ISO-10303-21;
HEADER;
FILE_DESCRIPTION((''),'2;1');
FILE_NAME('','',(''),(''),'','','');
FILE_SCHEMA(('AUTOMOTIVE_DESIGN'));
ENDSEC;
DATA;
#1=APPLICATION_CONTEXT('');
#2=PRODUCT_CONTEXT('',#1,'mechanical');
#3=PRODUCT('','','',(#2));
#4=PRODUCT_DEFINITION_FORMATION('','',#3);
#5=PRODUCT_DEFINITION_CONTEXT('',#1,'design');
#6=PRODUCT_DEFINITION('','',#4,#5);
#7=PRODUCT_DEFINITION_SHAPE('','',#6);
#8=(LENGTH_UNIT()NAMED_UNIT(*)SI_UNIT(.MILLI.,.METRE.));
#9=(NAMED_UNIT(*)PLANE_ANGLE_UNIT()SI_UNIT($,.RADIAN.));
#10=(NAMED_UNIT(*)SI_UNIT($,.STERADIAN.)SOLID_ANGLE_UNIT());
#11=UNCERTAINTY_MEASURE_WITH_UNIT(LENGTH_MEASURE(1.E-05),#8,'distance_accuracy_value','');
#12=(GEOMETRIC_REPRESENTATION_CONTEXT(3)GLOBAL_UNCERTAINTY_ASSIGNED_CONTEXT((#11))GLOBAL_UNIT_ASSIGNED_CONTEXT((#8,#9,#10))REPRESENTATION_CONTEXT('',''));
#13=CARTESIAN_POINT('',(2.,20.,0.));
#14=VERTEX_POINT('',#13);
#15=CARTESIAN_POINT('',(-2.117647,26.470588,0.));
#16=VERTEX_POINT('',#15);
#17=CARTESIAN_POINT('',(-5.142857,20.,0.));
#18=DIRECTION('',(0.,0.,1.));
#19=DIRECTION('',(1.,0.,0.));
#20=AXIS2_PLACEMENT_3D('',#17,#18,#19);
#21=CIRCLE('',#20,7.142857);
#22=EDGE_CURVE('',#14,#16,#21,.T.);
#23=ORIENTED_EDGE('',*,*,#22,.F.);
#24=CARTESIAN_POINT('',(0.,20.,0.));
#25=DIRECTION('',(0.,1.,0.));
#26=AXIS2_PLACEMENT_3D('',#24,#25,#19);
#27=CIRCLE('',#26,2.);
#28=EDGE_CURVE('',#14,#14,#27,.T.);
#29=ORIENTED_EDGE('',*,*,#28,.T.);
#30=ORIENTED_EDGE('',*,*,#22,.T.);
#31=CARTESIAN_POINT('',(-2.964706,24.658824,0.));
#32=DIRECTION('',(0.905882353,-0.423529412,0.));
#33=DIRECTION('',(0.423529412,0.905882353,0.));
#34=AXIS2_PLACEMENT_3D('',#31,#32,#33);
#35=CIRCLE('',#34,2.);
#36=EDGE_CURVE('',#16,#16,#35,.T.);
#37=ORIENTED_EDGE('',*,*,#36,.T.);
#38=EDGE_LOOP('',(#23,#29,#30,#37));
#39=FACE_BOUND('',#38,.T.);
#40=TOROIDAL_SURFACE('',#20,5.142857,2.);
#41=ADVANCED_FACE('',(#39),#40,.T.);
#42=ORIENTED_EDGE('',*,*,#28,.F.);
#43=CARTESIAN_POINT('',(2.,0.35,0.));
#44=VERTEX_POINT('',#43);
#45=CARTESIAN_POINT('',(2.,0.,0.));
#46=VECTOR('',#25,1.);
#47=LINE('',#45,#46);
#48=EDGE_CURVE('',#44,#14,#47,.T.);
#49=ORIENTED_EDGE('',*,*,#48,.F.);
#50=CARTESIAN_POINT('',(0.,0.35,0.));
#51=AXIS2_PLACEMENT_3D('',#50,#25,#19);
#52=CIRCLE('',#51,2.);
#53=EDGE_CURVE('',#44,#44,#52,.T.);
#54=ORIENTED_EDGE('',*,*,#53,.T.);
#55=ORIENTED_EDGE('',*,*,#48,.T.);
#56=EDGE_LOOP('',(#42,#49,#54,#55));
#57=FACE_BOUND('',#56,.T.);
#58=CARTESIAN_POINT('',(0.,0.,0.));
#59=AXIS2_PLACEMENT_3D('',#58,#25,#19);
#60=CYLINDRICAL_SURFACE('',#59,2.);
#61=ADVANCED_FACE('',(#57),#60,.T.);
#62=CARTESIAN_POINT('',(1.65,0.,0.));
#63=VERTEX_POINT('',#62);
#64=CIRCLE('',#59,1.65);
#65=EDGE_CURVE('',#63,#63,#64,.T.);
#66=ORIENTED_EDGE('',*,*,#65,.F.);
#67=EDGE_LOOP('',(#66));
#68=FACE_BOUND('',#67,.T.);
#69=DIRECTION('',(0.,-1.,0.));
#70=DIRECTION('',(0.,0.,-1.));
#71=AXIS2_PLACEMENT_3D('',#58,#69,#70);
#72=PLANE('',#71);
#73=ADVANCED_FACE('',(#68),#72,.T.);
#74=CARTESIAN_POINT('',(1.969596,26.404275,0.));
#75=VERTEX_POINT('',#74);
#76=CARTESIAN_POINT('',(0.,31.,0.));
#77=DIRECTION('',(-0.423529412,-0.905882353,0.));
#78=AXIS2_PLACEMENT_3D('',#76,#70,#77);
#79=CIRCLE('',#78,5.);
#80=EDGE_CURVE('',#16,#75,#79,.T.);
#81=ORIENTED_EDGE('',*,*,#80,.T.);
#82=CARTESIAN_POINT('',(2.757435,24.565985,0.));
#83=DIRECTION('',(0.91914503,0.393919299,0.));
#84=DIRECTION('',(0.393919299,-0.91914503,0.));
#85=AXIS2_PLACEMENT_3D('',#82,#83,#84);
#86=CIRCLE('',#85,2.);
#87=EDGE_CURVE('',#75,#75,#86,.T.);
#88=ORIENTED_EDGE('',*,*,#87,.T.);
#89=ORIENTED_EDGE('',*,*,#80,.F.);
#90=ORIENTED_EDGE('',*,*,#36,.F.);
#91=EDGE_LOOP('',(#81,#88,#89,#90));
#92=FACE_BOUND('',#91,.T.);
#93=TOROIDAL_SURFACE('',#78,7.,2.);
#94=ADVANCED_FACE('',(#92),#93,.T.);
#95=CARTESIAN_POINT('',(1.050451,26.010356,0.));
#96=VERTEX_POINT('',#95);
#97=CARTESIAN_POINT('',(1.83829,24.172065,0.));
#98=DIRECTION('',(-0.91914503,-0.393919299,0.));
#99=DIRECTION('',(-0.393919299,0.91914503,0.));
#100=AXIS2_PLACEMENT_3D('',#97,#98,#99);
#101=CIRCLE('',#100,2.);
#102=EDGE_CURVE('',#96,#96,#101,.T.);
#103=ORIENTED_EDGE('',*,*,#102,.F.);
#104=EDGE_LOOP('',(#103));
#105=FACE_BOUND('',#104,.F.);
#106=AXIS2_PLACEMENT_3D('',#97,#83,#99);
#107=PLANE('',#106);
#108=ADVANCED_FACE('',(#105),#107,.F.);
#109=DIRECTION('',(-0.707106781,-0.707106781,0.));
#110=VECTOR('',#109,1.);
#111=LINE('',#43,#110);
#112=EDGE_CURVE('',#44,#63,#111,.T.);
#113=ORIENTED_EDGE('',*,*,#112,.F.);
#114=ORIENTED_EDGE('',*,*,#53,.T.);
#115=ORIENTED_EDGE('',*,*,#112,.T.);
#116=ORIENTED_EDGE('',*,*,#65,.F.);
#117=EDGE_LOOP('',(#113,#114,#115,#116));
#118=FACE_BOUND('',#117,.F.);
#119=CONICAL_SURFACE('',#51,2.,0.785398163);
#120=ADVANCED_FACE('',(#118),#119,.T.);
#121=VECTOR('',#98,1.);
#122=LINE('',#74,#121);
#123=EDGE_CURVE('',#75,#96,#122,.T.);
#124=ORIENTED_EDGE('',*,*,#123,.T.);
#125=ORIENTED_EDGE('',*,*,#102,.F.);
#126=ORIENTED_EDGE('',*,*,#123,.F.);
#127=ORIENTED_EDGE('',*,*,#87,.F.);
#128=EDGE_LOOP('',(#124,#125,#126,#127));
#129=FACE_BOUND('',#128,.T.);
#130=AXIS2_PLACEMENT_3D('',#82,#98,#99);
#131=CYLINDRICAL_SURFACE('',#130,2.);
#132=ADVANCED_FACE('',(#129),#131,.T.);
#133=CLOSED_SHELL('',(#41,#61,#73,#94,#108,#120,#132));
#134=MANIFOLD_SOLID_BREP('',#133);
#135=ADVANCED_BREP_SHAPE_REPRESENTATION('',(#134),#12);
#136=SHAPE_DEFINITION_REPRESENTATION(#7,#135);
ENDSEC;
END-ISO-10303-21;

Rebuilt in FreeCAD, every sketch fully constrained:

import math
import FreeCAD as App
import Part
import Sketcher

V = App.Vector
Q = App.Units.Quantity


def edges_at(feature, points):
    """Names of the edges that pass closest to the given points."""
    edges = feature.Shape.Edges
    near = lambda p: min(range(len(edges)), key=lambda i: edges[i].distToShape(Part.Vertex(*p))[0])
    return sorted({f"Edge{near(p) + 1}" for p in points})

doc = App.newDocument("Part")
body = doc.addObject("PartDesign::Body", "Body")

# Sketch on XZ plane
sketch1 = body.newObject("Sketcher::SketchObject", "Sketch")
sketch1.AttachmentSupport = (doc.getObject("XZ_Plane"), [""])
sketch1.MapMode = "FlatFace"
sketch1.addGeometry(Part.Circle(V(0, 0, 0), V(0, 0, 1), 2), False)
sketch1.addConstraint([
    Sketcher.Constraint("Coincident", 0, 3, -1, 1),
    Sketcher.Constraint("Diameter", 0, Q("4 mm")),
])

# Sketch on XY plane
sketch2 = body.newObject("Sketcher::SketchObject", "Sketch001")
sketch2.AttachmentSupport = (doc.getObject("XY_Plane"), [""])
sketch2.MapMode = "FlatFace"
sketch2.addGeometry([
    Part.LineSegment(V(0, 0, 0), V(0, 20, 0)),
    Part.ArcOfCircle(Part.Circle(V(-5.1, 20, 0), V(0, 0, 1), 5.1), math.radians(0), math.radians(65)),
    Part.ArcOfCircle(Part.Circle(V(0, 31, 0), V(0, 0, 1), 7), math.radians(-67), math.radians(245)),
    Part.LineSegment(V(2.8, 24.6, 0), V(1.8, 24.2, 0)),
], False)
sketch2.addConstraint([
    Sketcher.Constraint("Tangent", 0, 2, 1, 1),
    Sketcher.Constraint("Tangent", 1, 2, 2, 2),
    Sketcher.Constraint("Tangent", 2, 1, 3, 1),
    Sketcher.Constraint("Vertical", 0),
    Sketcher.Constraint("Coincident", 0, 1, -1, 1),
    Sketcher.Constraint("PointOnObject", 2, 3, -2),
    Sketcher.Constraint("Radius", 2, Q("7 mm")),
    Sketcher.Constraint("DistanceY", 0, 1, 0, 2, Q("20 mm")),
    Sketcher.Constraint("Distance", 3, Q("1 mm")),
    Sketcher.Constraint("DistanceY", -1, 1, 2, 3, Q("31 mm")),
    Sketcher.Constraint("DistanceX", -1, 1, 3, 2, Q("1.83829 mm")),
])
doc.recompute()

additivepipe = body.newObject("PartDesign::AdditivePipe", "AdditivePipe")
additivepipe.Profile = sketch1
additivepipe.Spine = (sketch2, ["Edge1", "Edge2", "Edge3", "Edge4"])
doc.recompute()

chamfer = body.newObject("PartDesign::Chamfer", "Chamfer")
chamfer.Base = (additivepipe, edges_at(additivepipe, [(-2, 0, 0)]))
chamfer.Size = 0.35

doc.recompute()
